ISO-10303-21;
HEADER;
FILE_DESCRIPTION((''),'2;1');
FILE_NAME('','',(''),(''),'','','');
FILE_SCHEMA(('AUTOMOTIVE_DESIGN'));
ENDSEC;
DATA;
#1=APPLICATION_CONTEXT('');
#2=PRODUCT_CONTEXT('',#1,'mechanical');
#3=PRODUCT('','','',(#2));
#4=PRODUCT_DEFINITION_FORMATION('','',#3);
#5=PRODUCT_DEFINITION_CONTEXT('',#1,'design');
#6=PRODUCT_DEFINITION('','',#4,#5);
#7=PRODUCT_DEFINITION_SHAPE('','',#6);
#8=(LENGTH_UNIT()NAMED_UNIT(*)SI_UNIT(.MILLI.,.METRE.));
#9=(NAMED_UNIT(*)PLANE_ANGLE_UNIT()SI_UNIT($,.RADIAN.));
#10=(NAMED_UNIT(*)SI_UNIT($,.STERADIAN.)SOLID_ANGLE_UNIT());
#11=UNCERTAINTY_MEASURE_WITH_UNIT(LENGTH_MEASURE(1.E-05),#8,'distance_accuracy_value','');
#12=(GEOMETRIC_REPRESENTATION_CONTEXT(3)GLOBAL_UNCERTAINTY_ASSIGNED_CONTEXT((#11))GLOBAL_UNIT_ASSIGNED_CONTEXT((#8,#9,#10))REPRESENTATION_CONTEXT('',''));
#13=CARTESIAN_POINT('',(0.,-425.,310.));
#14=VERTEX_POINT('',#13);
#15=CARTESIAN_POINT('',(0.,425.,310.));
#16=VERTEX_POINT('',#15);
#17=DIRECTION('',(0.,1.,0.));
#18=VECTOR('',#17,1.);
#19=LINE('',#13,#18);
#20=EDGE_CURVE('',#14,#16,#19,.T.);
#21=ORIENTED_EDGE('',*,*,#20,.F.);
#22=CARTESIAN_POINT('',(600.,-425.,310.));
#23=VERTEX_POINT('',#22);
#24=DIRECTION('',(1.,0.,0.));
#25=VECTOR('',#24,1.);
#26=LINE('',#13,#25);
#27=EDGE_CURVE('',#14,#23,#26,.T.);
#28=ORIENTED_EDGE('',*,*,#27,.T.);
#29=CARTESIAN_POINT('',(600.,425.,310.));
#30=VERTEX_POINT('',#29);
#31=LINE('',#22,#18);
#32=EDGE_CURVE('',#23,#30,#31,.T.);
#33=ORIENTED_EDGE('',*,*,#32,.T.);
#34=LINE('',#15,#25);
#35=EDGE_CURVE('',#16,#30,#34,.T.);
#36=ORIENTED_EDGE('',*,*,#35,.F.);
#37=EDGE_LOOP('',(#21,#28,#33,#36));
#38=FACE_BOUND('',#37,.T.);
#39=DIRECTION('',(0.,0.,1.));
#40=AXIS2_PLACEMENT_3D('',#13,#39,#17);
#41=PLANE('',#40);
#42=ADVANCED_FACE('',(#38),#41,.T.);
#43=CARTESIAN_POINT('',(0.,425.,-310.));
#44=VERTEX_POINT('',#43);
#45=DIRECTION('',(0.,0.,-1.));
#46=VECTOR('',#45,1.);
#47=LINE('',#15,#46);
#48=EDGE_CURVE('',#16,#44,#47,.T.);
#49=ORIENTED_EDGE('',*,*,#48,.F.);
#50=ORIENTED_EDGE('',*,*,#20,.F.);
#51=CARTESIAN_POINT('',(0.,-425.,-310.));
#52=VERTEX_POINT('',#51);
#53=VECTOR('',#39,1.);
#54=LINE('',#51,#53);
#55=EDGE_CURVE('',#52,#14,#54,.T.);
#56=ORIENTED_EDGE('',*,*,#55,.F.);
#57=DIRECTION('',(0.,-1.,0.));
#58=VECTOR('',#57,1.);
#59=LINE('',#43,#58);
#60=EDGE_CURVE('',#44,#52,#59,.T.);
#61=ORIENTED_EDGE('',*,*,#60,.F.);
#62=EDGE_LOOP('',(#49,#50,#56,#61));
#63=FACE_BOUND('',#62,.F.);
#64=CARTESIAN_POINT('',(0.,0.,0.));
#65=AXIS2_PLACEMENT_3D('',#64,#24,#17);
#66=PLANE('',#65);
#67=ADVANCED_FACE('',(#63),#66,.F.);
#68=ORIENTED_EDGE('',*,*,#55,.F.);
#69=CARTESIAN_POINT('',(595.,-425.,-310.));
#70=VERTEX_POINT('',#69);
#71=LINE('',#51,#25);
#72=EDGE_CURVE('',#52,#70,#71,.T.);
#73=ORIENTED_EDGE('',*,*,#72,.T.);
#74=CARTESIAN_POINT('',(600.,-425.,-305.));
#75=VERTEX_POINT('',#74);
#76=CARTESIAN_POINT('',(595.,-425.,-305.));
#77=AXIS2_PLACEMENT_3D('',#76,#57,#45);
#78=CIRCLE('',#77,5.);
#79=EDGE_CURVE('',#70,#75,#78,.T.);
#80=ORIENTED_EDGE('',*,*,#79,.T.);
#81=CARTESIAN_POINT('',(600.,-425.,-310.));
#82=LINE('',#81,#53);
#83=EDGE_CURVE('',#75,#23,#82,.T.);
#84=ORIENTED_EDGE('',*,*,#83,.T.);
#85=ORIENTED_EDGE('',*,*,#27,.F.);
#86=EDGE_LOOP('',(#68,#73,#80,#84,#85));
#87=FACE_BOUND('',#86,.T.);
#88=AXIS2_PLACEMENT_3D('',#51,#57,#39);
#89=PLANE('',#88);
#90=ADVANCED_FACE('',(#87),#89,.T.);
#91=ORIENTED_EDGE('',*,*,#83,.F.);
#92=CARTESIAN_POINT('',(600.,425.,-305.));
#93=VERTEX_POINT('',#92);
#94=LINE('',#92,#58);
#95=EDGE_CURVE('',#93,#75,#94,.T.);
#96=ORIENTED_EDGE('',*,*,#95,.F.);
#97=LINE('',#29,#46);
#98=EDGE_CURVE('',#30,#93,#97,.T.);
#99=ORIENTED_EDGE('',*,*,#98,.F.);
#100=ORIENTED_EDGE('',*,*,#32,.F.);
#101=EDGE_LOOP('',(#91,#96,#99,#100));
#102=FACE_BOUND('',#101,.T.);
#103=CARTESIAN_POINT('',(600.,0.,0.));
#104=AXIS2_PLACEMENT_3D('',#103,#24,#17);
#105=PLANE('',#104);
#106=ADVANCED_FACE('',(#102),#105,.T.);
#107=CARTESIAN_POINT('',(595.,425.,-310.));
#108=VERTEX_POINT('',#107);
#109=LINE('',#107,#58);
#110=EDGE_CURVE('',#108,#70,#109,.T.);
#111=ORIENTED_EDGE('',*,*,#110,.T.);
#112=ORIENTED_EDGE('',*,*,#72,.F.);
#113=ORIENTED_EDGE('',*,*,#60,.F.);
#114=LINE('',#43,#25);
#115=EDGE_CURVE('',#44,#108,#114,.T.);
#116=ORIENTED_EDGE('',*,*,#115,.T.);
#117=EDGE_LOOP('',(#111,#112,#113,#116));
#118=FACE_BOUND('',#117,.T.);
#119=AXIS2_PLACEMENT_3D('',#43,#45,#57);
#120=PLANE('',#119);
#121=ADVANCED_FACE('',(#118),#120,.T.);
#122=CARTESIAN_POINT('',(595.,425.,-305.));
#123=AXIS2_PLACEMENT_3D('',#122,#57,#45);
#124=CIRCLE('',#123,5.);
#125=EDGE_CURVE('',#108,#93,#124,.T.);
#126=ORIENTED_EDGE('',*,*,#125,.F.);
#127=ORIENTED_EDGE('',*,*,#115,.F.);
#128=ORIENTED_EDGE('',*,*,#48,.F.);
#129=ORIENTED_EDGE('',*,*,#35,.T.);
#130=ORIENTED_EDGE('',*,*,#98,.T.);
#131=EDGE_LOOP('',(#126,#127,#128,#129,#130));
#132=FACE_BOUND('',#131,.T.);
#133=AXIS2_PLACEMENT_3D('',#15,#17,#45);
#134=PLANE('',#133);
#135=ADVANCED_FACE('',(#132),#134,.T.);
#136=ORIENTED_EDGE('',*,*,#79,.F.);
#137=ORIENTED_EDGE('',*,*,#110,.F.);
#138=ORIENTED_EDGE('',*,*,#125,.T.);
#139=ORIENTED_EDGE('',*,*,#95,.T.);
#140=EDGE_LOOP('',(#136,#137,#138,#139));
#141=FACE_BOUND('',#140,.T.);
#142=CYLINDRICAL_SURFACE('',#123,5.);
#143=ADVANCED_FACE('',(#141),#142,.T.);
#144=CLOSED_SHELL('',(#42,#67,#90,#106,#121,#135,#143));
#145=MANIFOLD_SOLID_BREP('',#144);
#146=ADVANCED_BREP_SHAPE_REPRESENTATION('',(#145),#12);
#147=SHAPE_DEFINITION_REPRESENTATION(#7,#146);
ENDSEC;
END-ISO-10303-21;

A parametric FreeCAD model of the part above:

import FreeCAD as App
import Part
import Sketcher


def edges_at(feature, points):
    """Names of the edges that pass closest to the given points."""
    edges = feature.Shape.Edges
    near = lambda p: min(range(len(edges)), key=lambda i: edges[i].distToShape(Part.Vertex(*p))[0])
    return sorted({f"Edge{near(p) + 1}" for p in points})

doc = App.newDocument("Part")
params = doc.addObject("Spreadsheet::Sheet", "Params")
for row, (alias, value) in enumerate([
    ("sketch1_width", "850 mm"),
    ("sketch1_height", "620 mm"),
    ("pad1_length", "600 mm"),
    ("fillet_radius", "5 mm"),
], start=1):
    params.set(f"A{row}", alias)
    params.set(f"B{row}", "=" + value)
    params.setAlias(f"B{row}", alias)

body = doc.addObject("PartDesign::Body", "Body")

# Sketch on YZ plane
sketch1 = body.newObject("Sketcher::SketchObject", "Sketch")
sketch1.AttachmentSupport = (doc.getObject("YZ_Plane"), [""])
sketch1.MapMode = "FlatFace"
sketch1.addGeometry([
    Part.LineSegment(App.Vector(-425, -310, 0), App.Vector(425, -310, 0)),
    Part.LineSegment(App.Vector(425, -310, 0), App.Vector(425, 310, 0)),
    Part.LineSegment(App.Vector(425, 310, 0), App.Vector(-425, 310, 0)),
    Part.LineSegment(App.Vector(-425, 310, 0), App.Vector(-425, -310, 0)),
], False)
sketch1.addConstraint([
    Sketcher.Constraint("Coincident", 0, 2, 1, 1),
    Sketcher.Constraint("Coincident", 1, 2, 2, 1),
    Sketcher.Constraint("Coincident", 2, 2, 3, 1),
    Sketcher.Constraint("Coincident", 3, 2, 0, 1),
    Sketcher.Constraint("Horizontal", 0),
    Sketcher.Constraint("Vertical", 1),
    Sketcher.Constraint("Horizontal", 2),
    Sketcher.Constraint("Vertical", 3),
    Sketcher.Constraint("Symmetric", 0, 2, 2, 2, -1, 1),
    Sketcher.Constraint("DistanceX", 0, 1, 0, 2, 850.0),
    Sketcher.Constraint("DistanceY", 1, 1, 1, 2, 620.0),
])
sketch1.setExpression("Constraints[9]", "Params.sketch1_width")
sketch1.setExpression("Constraints[10]", "Params.sketch1_height")
pad1 = body.newObject("PartDesign::Pad", "Pad")
pad1.Profile = sketch1
pad1.setExpression("Length", "Params.pad1_length")
doc.recompute()

fillet = body.newObject("PartDesign::Fillet", "Fillet")
fillet.Base = (pad1, edges_at(pad1, [(600, 0, -310)]))
fillet.setExpression("Radius", "Params.fillet_radius")

doc.recompute()
